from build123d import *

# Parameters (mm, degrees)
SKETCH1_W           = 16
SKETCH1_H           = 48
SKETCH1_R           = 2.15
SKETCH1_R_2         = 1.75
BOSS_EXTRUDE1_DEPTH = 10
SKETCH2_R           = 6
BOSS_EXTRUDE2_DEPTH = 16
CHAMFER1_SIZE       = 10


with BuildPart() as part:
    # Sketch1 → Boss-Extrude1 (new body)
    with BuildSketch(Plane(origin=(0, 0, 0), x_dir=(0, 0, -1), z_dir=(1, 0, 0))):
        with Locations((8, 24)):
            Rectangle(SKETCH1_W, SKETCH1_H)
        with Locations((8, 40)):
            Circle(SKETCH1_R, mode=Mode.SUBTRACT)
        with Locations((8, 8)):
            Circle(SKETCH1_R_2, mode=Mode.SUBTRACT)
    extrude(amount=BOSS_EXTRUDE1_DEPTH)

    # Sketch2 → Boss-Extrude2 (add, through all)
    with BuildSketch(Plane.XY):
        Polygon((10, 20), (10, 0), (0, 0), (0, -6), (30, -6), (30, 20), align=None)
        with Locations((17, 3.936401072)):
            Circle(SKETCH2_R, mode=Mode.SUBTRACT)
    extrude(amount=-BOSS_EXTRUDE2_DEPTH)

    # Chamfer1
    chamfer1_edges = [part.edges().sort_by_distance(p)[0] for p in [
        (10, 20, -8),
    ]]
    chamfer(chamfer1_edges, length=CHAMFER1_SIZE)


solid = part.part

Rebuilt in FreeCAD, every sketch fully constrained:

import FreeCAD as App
import Part
import Sketcher
Q = App.Units.Quantity


def edges_at(feature, points):
    """Names of the edges that pass closest to the given points."""
    edges = feature.Shape.Edges
    near = lambda p: min(range(len(edges)), key=lambda i: edges[i].distToShape(Part.Vertex(*p))[0])
    return sorted({f"Edge{near(p) + 1}" for p in points})

doc = App.newDocument("Part")
body = doc.addObject("PartDesign::Body", "Body")

# Sketch on YZ plane
sketch1 = doc.addObject("Sketcher::SketchObject", "Sketch")
body.addObject(sketch1)
sketch1.AttachmentSupport = (doc.YZ_Plane, [""])
sketch1.MapMode = "FlatFace"
sketch1.addGeometry([
    Part.LineSegment(App.Vector(48, 0, 0), App.Vector(0, 0, 0)),  # 0
    Part.LineSegment(App.Vector(0, 0, 0), App.Vector(0, -16, 0)),  # 1
    Part.LineSegment(App.Vector(0, -16, 0), App.Vector(48, -16, 0)),  # 2
    Part.LineSegment(App.Vector(48, -16, 0), App.Vector(48, 0, 0)),  # 3
    Part.Circle(App.Vector(8, -8, 0), App.Vector(0, 0, 1), 1.75),  # 4
    Part.Circle(App.Vector(40, -8, 0), App.Vector(0, 0, 1), 2.15),  # 5
], False)
sketch1.addConstraint([
    Sketcher.Constraint("Coincident", 0, 2, 1, 1),
    Sketcher.Constraint("Coincident", 1, 2, 2, 1),
    Sketcher.Constraint("Coincident", 2, 2, 3, 1),
    Sketcher.Constraint("Coincident", 3, 2, 0, 1),
    Sketcher.Constraint("Horizontal", 0),
    Sketcher.Constraint("Vertical", 1),
    Sketcher.Constraint("Horizontal", 2),
    Sketcher.Constraint("Vertical", 3),
    Sketcher.Constraint("Coincident", 0, 2, -1, 1),
    Sketcher.Constraint("Horizontal", 4, 3, 5, 3),
    Sketcher.Constraint("Diameter", 4, Q("3.5 mm")),
    Sketcher.Constraint("Diameter", 5, Q("4.3 mm")),
    Sketcher.Constraint("DistanceX", 0, 2, 0, 1, Q("48 mm")),
    Sketcher.Constraint("DistanceY", 1, 2, 1, 1, Q("16 mm")),
    Sketcher.Constraint("DistanceX", -1, 1, 4, 3, Q("8 mm")),
    Sketcher.Constraint("DistanceY", 4, 3, -1, 1, Q("8 mm")),
    Sketcher.Constraint("DistanceX", -1, 1, 5, 3, Q("40 mm")),
])
pad1 = doc.addObject("PartDesign::Pad", "Pad")
body.addObject(pad1)
pad1.Profile = sketch1
pad1.Length = 10

# Sketch on XY plane
sketch2 = doc.addObject("Sketcher::SketchObject", "Sketch001")
body.addObject(sketch2)
sketch2.AttachmentSupport = (doc.XY_Plane, [""])
sketch2.MapMode = "FlatFace"
sketch2.addGeometry([
    Part.LineSegment(App.Vector(10, 20, 0), App.Vector(10, 0, 0)),  # 0
    Part.LineSegment(App.Vector(10, 0, 0), App.Vector(0, 0, 0)),  # 1
    Part.LineSegment(App.Vector(0, 0, 0), App.Vector(0, -6, 0)),  # 2
    Part.LineSegment(App.Vector(0, -6, 0), App.Vector(30, -6, 0)),  # 3
    Part.LineSegment(App.Vector(30, -6, 0), App.Vector(30, 20, 0)),  # 4
    Part.LineSegment(App.Vector(30, 20, 0), App.Vector(10, 20, 0)),  # 5
    Part.Circle(App.Vector(17, 3.936401, 0), App.Vector(0, 0, 1), 6),  # 6
], False)
sketch2.addConstraint([
    Sketcher.Constraint("Coincident", 0, 2, 1, 1),
    Sketcher.Constraint("Coincident", 1, 2, 2, 1),
    Sketcher.Constraint("Coincident", 2, 2, 3, 1),
    Sketcher.Constraint("Coincident", 3, 2, 4, 1),
    Sketcher.Constraint("Coincident", 4, 2, 5, 1),
    Sketcher.Constraint("Coincident", 5, 2, 0, 1),
    Sketcher.Constraint("Vertical", 0),
    Sketcher.Constraint("Horizontal", 1),
    Sketcher.Constraint("Vertical", 2),
    Sketcher.Constraint("Horizontal", 3),
    Sketcher.Constraint("Vertical", 4),
    Sketcher.Constraint("Horizontal", 5),
    Sketcher.Constraint("Coincident", 1, 2, -1, 1),
    Sketcher.Constraint("Equal", 5, 0),
    Sketcher.Constraint("Diameter", 6, Q("12 mm")),
    Sketcher.Constraint("DistanceX", 1, 2, 1, 1, Q("10 mm")),
    Sketcher.Constraint("DistanceX", 3, 1, 3, 2, Q("30 mm")),
    Sketcher.Constraint("DistanceY", 2, 2, 2, 1, Q("6 mm")),
    Sketcher.Constraint("DistanceX", -1, 1, 6, 3, Q("17 mm")),
    Sketcher.Constraint("DistanceY", -1, 1, 6, 3, Q("3.936401 mm")),
])
pad2 = doc.addObject("PartDesign::Pad", "Pad001")
body.addObject(pad2)
pad2.Profile = sketch2
pad2.Length = 16
pad2.Reversed = True
doc.recompute()

chamfer = doc.addObject("PartDesign::Chamfer", "Chamfer")
body.addObject(chamfer)
chamfer.Base = (pad2, edges_at(pad2, [(10, 20, -8)]))
chamfer.Size = 10

doc.recompute()
